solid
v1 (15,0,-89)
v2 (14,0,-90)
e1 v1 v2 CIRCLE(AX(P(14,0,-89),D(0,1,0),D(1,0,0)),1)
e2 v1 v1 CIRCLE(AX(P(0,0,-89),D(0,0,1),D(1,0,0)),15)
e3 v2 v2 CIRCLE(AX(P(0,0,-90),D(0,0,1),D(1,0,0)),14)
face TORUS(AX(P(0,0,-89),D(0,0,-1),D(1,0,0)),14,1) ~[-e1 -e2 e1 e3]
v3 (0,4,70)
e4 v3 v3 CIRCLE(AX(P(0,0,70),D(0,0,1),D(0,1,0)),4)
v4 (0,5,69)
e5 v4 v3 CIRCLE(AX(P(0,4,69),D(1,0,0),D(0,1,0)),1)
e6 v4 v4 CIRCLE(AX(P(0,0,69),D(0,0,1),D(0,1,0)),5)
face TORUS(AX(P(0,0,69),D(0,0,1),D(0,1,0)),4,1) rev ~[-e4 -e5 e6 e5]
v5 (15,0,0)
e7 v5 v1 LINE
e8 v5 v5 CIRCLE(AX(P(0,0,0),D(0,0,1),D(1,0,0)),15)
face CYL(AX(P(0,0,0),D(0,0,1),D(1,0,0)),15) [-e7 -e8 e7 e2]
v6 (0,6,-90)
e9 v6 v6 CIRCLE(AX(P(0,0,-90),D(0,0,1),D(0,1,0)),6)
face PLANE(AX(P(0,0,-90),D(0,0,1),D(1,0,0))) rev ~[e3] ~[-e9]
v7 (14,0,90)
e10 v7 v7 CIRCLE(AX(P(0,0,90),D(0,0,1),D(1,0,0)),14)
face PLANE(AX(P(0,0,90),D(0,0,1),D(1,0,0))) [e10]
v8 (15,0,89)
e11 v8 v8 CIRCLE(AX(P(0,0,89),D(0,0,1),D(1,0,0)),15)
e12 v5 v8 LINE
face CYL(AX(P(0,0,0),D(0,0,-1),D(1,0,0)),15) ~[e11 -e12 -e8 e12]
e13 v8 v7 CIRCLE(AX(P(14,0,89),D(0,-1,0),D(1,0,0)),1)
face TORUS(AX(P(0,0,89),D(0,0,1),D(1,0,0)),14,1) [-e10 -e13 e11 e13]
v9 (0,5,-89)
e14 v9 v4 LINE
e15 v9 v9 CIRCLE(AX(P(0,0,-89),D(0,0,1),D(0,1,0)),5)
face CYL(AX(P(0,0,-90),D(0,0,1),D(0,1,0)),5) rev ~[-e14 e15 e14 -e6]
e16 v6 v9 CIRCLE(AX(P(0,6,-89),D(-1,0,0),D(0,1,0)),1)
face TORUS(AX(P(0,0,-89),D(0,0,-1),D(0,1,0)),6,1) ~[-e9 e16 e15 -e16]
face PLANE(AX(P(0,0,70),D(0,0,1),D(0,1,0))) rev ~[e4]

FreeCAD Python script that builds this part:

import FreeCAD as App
import Part
import Sketcher
from FreeCAD import Vector
Q = App.Units.Quantity


def edges_at(feature, points):
    """Names of the edges that pass closest to the given points."""
    edges = feature.Shape.Edges
    near = lambda p: min(range(len(edges)), key=lambda i: edges[i].distToShape(Part.Vertex(*p))[0])
    return sorted({f"Edge{near(p) + 1}" for p in points})

doc = App.newDocument("Part")
body = doc.addObject("PartDesign::Body", "Body")

# Sketch on XY plane
sketch1 = doc.addObject("Sketcher::SketchObject", "Sketch")
body.addObject(sketch1)
sketch1.AttachmentSupport = (doc.XY_Plane, [""])
sketch1.MapMode = "FlatFace"
sketch1.addGeometry(Part.Circle(Vector(0, 0, 0), Vector(0, 0, 1), 15), False)
sketch1.addConstraint([
    Sketcher.Constraint("Coincident", 0, 3, -1, 1),
    Sketcher.Constraint("Diameter", 0, Q("30 mm")),
])
pad1 = doc.addObject("PartDesign::Pad", "Pad")
body.addObject(pad1)
pad1.Profile = sketch1
pad1.Length = 180
pad1.Midplane = True

# Sketch on XY plane
sketch2 = doc.addObject("Sketcher::SketchObject", "Sketch001")
body.addObject(sketch2)
sketch2.AttachmentSupport = (doc.XY_Plane, [""])
sketch2.MapMode = "FlatFace"
sketch2.AttachmentOffset = App.Placement(Vector(0, 0, -90), App.Rotation())
sketch2.addGeometry(Part.Circle(Vector(0, 0, 0), Vector(0, 0, 1), 5), False)
sketch2.addConstraint([
    Sketcher.Constraint("Coincident", 0, 3, -1, 1),
    Sketcher.Constraint("Diameter", 0, Q("10 mm")),
])
doc.recompute()
hole = doc.addObject("PartDesign::Hole", "Hole")
body.addObject(hole)
hole.Profile = sketch2
hole.ThreadType = "None"
hole.Diameter = 10
hole.DepthType = "Dimension"
hole.Depth = 160
hole.DrillPoint = "Flat"
hole.Reversed = True
doc.recompute()

fillet = doc.addObject("PartDesign::Fillet", "Fillet")
body.addObject(fillet)
fillet.Base = (hole, edges_at(hole, [
    (-15, 0, 90),
    (-15, 0, -90),
    (0, -5, -90),
    (0, -5, 70),
]))
fillet.Radius = 1

doc.recompute()
